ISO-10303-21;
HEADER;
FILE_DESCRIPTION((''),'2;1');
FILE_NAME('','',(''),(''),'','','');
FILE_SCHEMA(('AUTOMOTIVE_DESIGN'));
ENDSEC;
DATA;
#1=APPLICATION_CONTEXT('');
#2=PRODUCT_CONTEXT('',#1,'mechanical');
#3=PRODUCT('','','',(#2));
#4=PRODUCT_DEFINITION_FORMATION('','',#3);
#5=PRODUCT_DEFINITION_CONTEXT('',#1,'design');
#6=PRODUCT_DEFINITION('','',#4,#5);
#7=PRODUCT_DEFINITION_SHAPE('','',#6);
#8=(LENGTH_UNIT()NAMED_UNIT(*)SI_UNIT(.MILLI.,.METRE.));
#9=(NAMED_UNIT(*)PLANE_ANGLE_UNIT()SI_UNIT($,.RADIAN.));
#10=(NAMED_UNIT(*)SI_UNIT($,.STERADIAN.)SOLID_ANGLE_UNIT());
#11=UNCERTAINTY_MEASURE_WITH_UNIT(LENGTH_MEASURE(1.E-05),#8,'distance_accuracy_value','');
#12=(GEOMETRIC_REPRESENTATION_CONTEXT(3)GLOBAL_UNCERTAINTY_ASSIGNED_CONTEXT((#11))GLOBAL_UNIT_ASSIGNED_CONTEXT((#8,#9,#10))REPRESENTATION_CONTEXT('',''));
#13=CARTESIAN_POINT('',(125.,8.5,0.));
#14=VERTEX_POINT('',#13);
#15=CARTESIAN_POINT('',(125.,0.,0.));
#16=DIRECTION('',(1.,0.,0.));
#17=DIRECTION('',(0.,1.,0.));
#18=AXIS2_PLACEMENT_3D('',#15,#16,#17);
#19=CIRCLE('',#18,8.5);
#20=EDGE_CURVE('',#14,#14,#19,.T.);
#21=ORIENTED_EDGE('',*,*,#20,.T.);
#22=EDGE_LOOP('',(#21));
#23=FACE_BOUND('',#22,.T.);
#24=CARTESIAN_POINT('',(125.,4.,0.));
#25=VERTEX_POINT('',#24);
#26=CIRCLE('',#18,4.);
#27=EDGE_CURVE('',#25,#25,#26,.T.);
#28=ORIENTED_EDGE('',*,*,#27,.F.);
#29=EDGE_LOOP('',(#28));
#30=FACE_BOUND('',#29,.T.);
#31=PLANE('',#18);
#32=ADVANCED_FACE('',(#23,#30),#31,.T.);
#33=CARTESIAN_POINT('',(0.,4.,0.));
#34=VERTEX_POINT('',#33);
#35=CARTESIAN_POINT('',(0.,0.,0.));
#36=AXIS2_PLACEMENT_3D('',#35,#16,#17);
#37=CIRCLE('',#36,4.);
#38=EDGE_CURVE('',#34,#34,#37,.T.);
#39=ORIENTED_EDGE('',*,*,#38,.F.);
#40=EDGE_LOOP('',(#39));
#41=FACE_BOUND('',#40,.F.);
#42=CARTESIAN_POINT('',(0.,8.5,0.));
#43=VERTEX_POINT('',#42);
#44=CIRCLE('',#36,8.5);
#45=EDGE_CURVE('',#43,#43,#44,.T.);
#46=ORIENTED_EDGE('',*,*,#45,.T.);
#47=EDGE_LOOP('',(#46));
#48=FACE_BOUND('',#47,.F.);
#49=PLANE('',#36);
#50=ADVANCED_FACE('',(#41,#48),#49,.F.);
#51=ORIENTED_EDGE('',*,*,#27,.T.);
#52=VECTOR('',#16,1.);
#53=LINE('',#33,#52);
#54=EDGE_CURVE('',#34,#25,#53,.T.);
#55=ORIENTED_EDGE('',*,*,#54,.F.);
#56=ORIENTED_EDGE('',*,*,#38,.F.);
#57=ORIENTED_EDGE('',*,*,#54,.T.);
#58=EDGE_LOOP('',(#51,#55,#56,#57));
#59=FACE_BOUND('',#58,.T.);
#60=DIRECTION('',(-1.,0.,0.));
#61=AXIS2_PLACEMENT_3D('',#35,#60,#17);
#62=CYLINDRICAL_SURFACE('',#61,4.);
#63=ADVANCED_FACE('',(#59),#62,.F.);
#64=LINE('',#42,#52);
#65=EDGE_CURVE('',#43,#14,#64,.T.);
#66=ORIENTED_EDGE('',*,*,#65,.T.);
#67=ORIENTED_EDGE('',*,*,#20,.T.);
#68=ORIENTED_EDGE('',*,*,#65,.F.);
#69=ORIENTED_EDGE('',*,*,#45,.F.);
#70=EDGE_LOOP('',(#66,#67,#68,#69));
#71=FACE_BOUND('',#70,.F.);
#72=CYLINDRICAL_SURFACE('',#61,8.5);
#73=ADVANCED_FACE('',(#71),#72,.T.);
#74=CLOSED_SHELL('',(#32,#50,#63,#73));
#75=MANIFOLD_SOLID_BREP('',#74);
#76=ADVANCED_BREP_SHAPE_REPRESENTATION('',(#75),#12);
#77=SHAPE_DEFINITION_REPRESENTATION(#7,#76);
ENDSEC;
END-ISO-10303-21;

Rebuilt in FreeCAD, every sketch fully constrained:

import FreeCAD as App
import Part
import Sketcher

V = App.Vector
Q = App.Units.Quantity

doc = App.newDocument("Part")
params = doc.addObject("Spreadsheet::Sheet", "Params")
for row, (alias, value) in enumerate([
    ("sketch1_diameter", "17 mm"),
    ("sketch1_diameter2", "8 mm"),
    ("pad1_length", "125 mm"),
], start=1):
    params.set(f"A{row}", alias)
    params.set(f"B{row}", "=" + value)
    params.setAlias(f"B{row}", alias)

body = doc.addObject("PartDesign::Body", "Body")

# Sketch on YZ plane
sketch1 = body.newObject("Sketcher::SketchObject", "Sketch")
sketch1.AttachmentSupport = (doc.getObject("YZ_Plane"), [""])
sketch1.MapMode = "FlatFace"
sketch1.addGeometry([
    Part.Circle(V(0, 0, 0), V(0, 0, 1), 8.5),
    Part.Circle(V(0, 0, 0), V(0, 0, 1), 4),
], False)
sketch1.addConstraint([
    Sketcher.Constraint("Coincident", 0, 3, -1, 1),
    Sketcher.Constraint("Coincident", 1, 3, -1, 1),
    Sketcher.Constraint("Diameter", 0, Q("17 mm")),
    Sketcher.Constraint("Diameter", 1, Q("8 mm")),
])
sketch1.setExpression("Constraints[2]", "Params.sketch1_diameter")
sketch1.setExpression("Constraints[3]", "Params.sketch1_diameter2")
pad1 = body.newObject("PartDesign::Pad", "Pad")
pad1.Profile = sketch1
pad1.setExpression("Length", "Params.pad1_length")

doc.recompute()
